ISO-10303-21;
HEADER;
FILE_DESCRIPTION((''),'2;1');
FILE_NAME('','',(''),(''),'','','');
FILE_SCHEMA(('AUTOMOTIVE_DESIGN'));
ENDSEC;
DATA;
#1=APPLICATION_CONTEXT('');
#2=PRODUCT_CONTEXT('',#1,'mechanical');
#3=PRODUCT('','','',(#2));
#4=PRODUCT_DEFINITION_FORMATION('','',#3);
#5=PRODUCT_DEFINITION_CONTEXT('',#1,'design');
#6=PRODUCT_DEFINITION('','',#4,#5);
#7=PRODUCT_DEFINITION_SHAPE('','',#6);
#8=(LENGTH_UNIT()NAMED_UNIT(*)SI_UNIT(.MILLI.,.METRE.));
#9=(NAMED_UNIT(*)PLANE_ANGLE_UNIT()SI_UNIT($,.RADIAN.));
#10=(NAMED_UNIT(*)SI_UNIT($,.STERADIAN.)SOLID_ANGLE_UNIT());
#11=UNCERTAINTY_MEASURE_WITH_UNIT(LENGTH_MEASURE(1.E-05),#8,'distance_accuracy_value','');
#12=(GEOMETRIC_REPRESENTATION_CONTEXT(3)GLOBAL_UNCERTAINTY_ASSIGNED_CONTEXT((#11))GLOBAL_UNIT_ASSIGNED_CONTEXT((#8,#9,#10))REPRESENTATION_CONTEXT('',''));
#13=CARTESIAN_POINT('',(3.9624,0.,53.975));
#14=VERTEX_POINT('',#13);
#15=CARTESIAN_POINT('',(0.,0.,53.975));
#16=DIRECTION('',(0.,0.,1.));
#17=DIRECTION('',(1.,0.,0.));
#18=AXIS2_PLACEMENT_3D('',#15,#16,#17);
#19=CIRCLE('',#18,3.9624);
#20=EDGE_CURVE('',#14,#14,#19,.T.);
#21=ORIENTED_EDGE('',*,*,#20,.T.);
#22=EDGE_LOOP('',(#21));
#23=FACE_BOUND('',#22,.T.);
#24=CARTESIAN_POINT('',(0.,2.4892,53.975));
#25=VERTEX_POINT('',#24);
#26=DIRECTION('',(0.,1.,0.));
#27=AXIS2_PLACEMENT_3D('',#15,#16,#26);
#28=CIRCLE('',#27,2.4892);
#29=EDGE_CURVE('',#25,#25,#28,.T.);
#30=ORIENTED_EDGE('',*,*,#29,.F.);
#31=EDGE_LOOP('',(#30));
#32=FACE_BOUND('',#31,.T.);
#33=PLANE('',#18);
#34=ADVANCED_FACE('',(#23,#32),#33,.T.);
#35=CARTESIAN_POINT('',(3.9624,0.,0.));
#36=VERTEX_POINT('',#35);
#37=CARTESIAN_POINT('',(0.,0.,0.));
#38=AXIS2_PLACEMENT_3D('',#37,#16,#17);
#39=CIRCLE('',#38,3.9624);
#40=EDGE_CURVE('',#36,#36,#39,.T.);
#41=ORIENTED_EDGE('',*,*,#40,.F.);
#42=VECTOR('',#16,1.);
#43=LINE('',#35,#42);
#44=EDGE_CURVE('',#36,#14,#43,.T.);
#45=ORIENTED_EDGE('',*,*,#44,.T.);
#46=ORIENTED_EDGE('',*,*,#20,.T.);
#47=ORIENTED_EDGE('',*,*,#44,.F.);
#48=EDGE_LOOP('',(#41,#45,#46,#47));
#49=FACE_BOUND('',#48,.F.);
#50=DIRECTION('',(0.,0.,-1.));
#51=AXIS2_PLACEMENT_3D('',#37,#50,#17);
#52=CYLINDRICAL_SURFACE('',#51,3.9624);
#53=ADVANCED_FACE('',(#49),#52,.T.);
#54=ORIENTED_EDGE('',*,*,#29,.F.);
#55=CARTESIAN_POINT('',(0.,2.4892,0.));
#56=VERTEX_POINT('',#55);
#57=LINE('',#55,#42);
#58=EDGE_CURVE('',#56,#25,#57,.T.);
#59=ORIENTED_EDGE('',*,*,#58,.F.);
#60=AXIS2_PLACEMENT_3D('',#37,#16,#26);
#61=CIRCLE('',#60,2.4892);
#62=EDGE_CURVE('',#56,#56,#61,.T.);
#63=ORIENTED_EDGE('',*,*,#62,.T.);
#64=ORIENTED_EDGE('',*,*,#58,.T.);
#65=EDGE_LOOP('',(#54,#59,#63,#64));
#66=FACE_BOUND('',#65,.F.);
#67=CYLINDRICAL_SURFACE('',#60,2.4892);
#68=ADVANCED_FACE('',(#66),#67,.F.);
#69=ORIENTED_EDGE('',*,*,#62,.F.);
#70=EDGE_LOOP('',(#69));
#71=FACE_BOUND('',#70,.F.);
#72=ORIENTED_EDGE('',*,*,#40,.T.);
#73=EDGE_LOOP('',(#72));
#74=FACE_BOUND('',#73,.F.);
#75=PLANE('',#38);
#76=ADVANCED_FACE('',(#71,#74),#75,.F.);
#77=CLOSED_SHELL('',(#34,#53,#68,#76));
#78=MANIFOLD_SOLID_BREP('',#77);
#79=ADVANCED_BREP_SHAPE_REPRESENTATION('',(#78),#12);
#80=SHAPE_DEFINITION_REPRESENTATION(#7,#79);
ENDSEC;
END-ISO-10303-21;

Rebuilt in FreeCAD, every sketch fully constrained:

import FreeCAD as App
import Part
import Sketcher

V = App.Vector
Q = App.Units.Quantity

doc = App.newDocument("Part")
params = doc.addObject("Spreadsheet::Sheet", "Params")
for row, (alias, value) in enumerate([
    ("sketch1_diameter", "0.312 in"),
    ("pad1_length", "2.125 in"),
    ("sketch2_diameter", "0.196 in"),
    ("hole_diameter", "0.196 in"),
], start=1):
    params.set(f"A{row}", alias)
    params.set(f"B{row}", "=" + value)
    params.setAlias(f"B{row}", alias)

body = doc.addObject("PartDesign::Body", "Body")

# Sketch on XY plane
sketch1 = body.newObject("Sketcher::SketchObject", "Sketch")
sketch1.AttachmentSupport = (doc.getObject("XY_Plane"), [""])
sketch1.MapMode = "FlatFace"
sketch1.addGeometry(Part.Circle(V(0, 0, 0), V(0, 0, 1), 4), False)
sketch1.addConstraint([
    Sketcher.Constraint("Coincident", 0, 3, -1, 1),
    Sketcher.Constraint("Diameter", 0, Q("0.312 in")),
])
sketch1.setExpression("Constraints[1]", "Params.sketch1_diameter")
pad1 = body.newObject("PartDesign::Pad", "Pad")
pad1.Profile = sketch1
pad1.setExpression("Length", "Params.pad1_length")

# Sketch on XY plane
sketch2 = body.newObject("Sketcher::SketchObject", "Sketch001")
sketch2.AttachmentSupport = (doc.getObject("XY_Plane"), [""])
sketch2.MapMode = "FlatFace"
sketch2.addGeometry(Part.Circle(V(0, 0, 0), V(0, 0, 1), 2.5), False)
sketch2.addConstraint([
    Sketcher.Constraint("Coincident", 0, 3, -1, 1),
    Sketcher.Constraint("Diameter", 0, Q("0.196 in")),
])
sketch2.setExpression("Constraints[1]", "Params.sketch2_diameter")
doc.recompute()
hole = body.newObject("PartDesign::Hole", "Hole")
hole.Profile = sketch2
hole.ThreadType = "None"
hole.setExpression("Diameter", "Params.hole_diameter")
hole.DepthType = "ThroughAll"
hole.Reversed = True

doc.recompute()
